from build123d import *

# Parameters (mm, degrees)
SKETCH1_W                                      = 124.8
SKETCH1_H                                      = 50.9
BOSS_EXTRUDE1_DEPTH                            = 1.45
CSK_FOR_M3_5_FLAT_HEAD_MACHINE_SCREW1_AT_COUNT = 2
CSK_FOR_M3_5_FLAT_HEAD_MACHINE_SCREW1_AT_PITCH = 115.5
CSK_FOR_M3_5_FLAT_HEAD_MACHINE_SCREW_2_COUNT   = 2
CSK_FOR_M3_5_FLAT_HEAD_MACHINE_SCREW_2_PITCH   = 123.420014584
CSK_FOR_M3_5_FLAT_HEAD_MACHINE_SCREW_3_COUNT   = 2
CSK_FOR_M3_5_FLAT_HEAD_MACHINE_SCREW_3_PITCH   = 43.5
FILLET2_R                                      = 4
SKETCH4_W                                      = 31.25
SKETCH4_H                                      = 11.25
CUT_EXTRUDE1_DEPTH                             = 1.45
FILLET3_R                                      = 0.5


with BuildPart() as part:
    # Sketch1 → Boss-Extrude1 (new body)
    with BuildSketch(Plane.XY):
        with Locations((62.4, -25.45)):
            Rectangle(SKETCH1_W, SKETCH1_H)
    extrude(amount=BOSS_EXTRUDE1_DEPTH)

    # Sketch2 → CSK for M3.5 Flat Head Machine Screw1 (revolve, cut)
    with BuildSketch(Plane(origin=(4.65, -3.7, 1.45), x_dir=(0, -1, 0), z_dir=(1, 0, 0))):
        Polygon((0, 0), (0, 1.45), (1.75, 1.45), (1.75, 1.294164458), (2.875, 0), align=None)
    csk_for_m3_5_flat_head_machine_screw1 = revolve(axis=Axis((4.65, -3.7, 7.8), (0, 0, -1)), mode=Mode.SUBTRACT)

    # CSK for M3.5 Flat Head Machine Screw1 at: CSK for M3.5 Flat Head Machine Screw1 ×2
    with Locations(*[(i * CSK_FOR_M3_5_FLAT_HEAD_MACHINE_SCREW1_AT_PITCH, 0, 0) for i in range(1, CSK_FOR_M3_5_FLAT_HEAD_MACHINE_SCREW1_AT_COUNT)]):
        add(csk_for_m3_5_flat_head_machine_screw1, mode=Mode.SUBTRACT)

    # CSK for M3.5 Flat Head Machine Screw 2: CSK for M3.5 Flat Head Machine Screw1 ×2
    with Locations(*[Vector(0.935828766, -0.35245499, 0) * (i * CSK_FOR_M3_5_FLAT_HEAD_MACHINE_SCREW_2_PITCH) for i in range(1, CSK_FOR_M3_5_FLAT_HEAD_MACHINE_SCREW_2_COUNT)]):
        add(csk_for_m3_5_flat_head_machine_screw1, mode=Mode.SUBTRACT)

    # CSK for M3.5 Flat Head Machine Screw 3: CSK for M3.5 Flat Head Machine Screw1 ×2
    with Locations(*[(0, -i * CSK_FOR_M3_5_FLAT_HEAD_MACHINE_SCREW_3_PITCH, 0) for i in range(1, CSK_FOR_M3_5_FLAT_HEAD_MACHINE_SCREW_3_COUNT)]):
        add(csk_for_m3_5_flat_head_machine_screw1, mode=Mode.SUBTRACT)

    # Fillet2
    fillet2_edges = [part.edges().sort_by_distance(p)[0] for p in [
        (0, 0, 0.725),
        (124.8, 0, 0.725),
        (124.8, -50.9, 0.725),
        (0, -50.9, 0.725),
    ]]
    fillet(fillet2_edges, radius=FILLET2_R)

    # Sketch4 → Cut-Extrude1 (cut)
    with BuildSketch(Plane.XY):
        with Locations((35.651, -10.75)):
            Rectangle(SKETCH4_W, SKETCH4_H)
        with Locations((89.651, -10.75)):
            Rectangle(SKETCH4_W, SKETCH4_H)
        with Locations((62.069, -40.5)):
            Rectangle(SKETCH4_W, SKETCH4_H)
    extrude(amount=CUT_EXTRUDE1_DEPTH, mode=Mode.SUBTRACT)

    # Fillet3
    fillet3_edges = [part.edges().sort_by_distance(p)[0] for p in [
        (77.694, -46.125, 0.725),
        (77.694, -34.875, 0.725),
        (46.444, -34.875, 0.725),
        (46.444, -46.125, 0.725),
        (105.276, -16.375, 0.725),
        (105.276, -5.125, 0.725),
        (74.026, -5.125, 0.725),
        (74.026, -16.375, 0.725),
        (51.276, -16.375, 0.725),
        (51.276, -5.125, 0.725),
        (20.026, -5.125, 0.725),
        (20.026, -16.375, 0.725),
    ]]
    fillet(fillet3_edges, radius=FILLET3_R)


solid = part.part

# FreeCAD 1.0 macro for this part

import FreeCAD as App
import Part
import Sketcher
Q = App.Units.Quantity


def edges_at(feature, points):
    """Names of the edges that pass closest to the given points."""
    edges = feature.Shape.Edges
    near = lambda p: min(range(len(edges)), key=lambda i: edges[i].distToShape(Part.Vertex(*p))[0])
    return sorted({f"Edge{near(p) + 1}" for p in points})


def add_polygon(sketch, points):
    """Adds a closed chain of lines whose ends are joined by coincident constraints."""
    first, n = sketch.GeometryCount, len(points)
    for a, b in zip(points, points[1:] + points[:1]):
        sketch.addGeometry(Part.LineSegment(App.Vector(*a, 0), App.Vector(*b, 0)), False)
    for i in range(n):
        sketch.addConstraint(Sketcher.Constraint("Coincident", first + i, 2, first + (i + 1) % n, 1))

doc = App.newDocument("Part")
params = doc.addObject("Spreadsheet::Sheet", "Params")
for row, (alias, value) in enumerate([
    ("sketch1_width", "124.8 mm"),
    ("sketch1_height", "50.9 mm"),
    ("pad1_length", "1.45 mm"),
    ("sketch2_width", "1.75 mm"),
    ("sketch2_height", "1.45 mm"),
    ("groove_angle", "360 deg"),
    ("linearpattern_pitch", "115.5 mm"),
    ("linearpattern2_pitch", "123.420015 mm"),
    ("linearpattern3_pitch", "43.5 mm"),
    ("fillet_radius", "4 mm"),
    ("sketch3_width", "31.25 mm"),
    ("sketch3_height", "11.25 mm"),
    ("pocket1_length", "1.45 mm"),
    ("fillet2_radius", "0.5 mm"),
], start=1):
    params.set(f"A{row}", alias)
    params.set(f"B{row}", "=" + value)
    params.setAlias(f"B{row}", alias)

body = doc.addObject("PartDesign::Body", "Body")

sketch1 = doc.addObject("Sketcher::SketchObject", "Sketch")
body.addObject(sketch1)
sketch1.AttachmentSupport = (doc.XY_Plane, [""])
sketch1.MapMode = "FlatFace"
add_polygon(sketch1, [(0, 0), (0, -51), (125, -51), (125, 0)])
sketch1.addConstraint([
    Sketcher.Constraint("Vertical", 0),
    Sketcher.Constraint("Horizontal", 1),
    Sketcher.Constraint("Vertical", 2),
    Sketcher.Constraint("Horizontal", 3),
    Sketcher.Constraint("Coincident", 3, 2, -1, 1),
    Sketcher.Constraint("DistanceX", 1, 1, 1, 2, 124.8),
    Sketcher.Constraint("DistanceY", 0, 2, 0, 1, 50.9),
])
sketch1.setExpression("Constraints[9]", "Params.sketch1_width")
sketch1.setExpression("Constraints[10]", "Params.sketch1_height")
pad1 = doc.addObject("PartDesign::Pad", "Pad")
body.addObject(pad1)
pad1.Profile = sketch1
pad1.setExpression("Length", "Params.pad1_length")

sketch2 = doc.addObject("Sketcher::SketchObject", "Sketch001")
body.addObject(sketch2)
sketch2.AttachmentSupport = (doc.YZ_Plane, [""])
sketch2.MapMode = "FlatFace"
sketch2.AttachmentOffset = App.Placement(App.Vector(0, 0, 4.65), App.Rotation())
add_polygon(sketch2, [(-3.7, 0), (-3.7, 1.45), (-6.58, 1.45), (-5.45, 0.16), (-5.45, 0)])
sketch2.addGeometry(Part.LineSegment(App.Vector(-3.7, 1.45, 0), App.Vector(-3.7, 0, 0)), True)
sketch2.addConstraint([
    Sketcher.Constraint("Vertical", 0),
    Sketcher.Constraint("Horizontal", 1),
    Sketcher.Constraint("Vertical", 3),
    Sketcher.Constraint("Horizontal", 4),
    Sketcher.Constraint("Vertical", 5),
    Sketcher.Constraint("Coincident", 5, 1, 0, 2),
    Sketcher.Constraint("PointOnObject", 3, 2, -1),
    Sketcher.Constraint("PointOnObject", 5, 2, -1),
    Sketcher.Constraint("Angle", 2, Q("-49 deg")),
    Sketcher.Constraint("DistanceX", 4, 1, 4, 2, 1.75),
    Sketcher.Constraint("DistanceY", 0, 1, 0, 2, 1.45),
    Sketcher.Constraint("DistanceX", 0, 2, -1, 1, 3.7),
    Sketcher.Constraint("DistanceX", 1, 2, 1, 1, 2.875),
])
sketch2.setExpression("Constraints[14]", "Params.sketch2_width")
sketch2.setExpression("Constraints[15]", "Params.sketch2_height")
groove = doc.addObject("PartDesign::Groove", "Groove")
body.addObject(groove)
groove.Profile = sketch2
groove.ReferenceAxis = (sketch2, ["Axis0"])
groove.setExpression("Angle", "Params.groove_angle")
doc.recompute()

linearpattern = doc.addObject("PartDesign::LinearPattern", "LinearPattern")
body.addObject(linearpattern)
linearpattern.Originals = [groove]
linearpattern.Direction = (doc.X_Axis, [""])
linearpattern.Mode = "offset"
linearpattern.setExpression("Offset", "Params.linearpattern_pitch")
linearpattern.Occurrences = 2
body.Tip = linearpattern
doc.recompute()

datumline = doc.addObject("PartDesign::Line", "DatumLine")
body.addObject(datumline)
datumline.Placement = App.Placement(App.Vector(0, 0, 0), App.Rotation(App.Vector(0, 0, 1), App.Vector(0.935828766, -0.35245499, 0)))
linearpattern2 = doc.addObject("PartDesign::LinearPattern", "LinearPattern001")
body.addObject(linearpattern2)
linearpattern2.Originals = [groove]
linearpattern2.Direction = (datumline, [""])
linearpattern2.Mode = "offset"
linearpattern2.setExpression("Offset", "Params.linearpattern2_pitch")
linearpattern2.Occurrences = 2
body.Tip = linearpattern2
doc.recompute()

linearpattern3 = doc.addObject("PartDesign::LinearPattern", "LinearPattern002")
body.addObject(linearpattern3)
linearpattern3.Originals = [groove]
linearpattern3.Direction = (doc.Y_Axis, [""])
linearpattern3.Mode = "offset"
linearpattern3.setExpression("Offset", "Params.linearpattern3_pitch")
linearpattern3.Occurrences = 2
linearpattern3.Reversed = True
body.Tip = linearpattern3
doc.recompute()

fillet = doc.addObject("PartDesign::Fillet", "Fillet")
body.addObject(fillet)
fillet.Base = (linearpattern3, edges_at(linearpattern3, [
    (0, 0, 0.725),
    (124.8, 0, 0.725),
    (124.8, -50.9, 0.725),
    (0, -50.9, 0.725),
]))
fillet.setExpression("Radius", "Params.fillet_radius")

sketch3 = doc.addObject("Sketcher::SketchObject", "Sketch002")
body.addObject(sketch3)
sketch3.AttachmentSupport = (doc.XY_Plane, [""])
sketch3.MapMode = "FlatFace"
add_polygon(sketch3, [(20, -5), (20, -16), (51, -16), (51, -5)])
add_polygon(sketch3, [(74, -5), (74, -16), (105, -16), (105, -5)])
add_polygon(sketch3, [(46, -35), (46, -46), (78, -46), (78, -35)])
sketch3.addConstraint([
    Sketcher.Constraint("Vertical", 0),
    Sketcher.Constraint("Horizontal", 1),
    Sketcher.Constraint("Vertical", 2),
    Sketcher.Constraint("Horizontal", 3),
    Sketcher.Constraint("Vertical", 4),
    Sketcher.Constraint("Horizontal", 5),
    Sketcher.Constraint("Vertical", 6),
    Sketcher.Constraint("Horizontal", 7),
    Sketcher.Constraint("Vertical", 8),
    Sketcher.Constraint("Horizontal", 9),
    Sketcher.Constraint("Vertical", 10),
    Sketcher.Constraint("Horizontal", 11),
    Sketcher.Constraint("Horizontal", 1, 2, 4, 2),
    Sketcher.Constraint("Horizontal", 3, 2, 6, 2),
    Sketcher.Constraint("Equal", 3, 5),
    Sketcher.Constraint("Equal", 7, 9),
    Sketcher.Constraint("Equal", 6, 8),
    Sketcher.Constraint("DistanceX", 0, 2, 4, 2, 54.0),
    Sketcher.Constraint("DistanceY", 8, 2, 2, 2, 41.0),
    Sketcher.Constraint("DistanceX", 1, 1, 1, 2, 31.25),
    Sketcher.Constraint("DistanceY", 0, 2, 0, 1, 11.25),
    Sketcher.Constraint("DistanceX", -1, 1, 0, 2, 20.026),
    Sketcher.Constraint("DistanceY", 0, 2, -1, 1, 16.375),
    Sketcher.Constraint("DistanceX", -1, 1, 8, 2, 46.444),
])
sketch3.setExpression("Constraints[31]", "Params.sketch3_width")
sketch3.setExpression("Constraints[32]", "Params.sketch3_height")
pocket1 = doc.addObject("PartDesign::Pocket", "Pocket")
body.addObject(pocket1)
pocket1.Profile = sketch3
pocket1.setExpression("Length", "Params.pocket1_length")
pocket1.Reversed = True
doc.recompute()

fillet2 = doc.addObject("PartDesign::Fillet", "Fillet001")
body.addObject(fillet2)
fillet2.Base = (pocket1, edges_at(pocket1, [
    (77.694, -46.125, 0.725),
    (77.694, -34.875, 0.725),
    (46.444, -34.875, 0.725),
    (46.444, -46.125, 0.725),
    (105.276, -16.375, 0.725),
    (105.276, -5.125, 0.725),
    (74.026, -5.125, 0.725),
    (74.026, -16.375, 0.725),
    (51.276, -16.375, 0.725),
    (51.276, -5.125, 0.725),
    (20.026, -5.125, 0.725),
    (20.026, -16.375, 0.725),
]))
fillet2.setExpression("Radius", "Params.fillet2_radius")

doc.recompute()
